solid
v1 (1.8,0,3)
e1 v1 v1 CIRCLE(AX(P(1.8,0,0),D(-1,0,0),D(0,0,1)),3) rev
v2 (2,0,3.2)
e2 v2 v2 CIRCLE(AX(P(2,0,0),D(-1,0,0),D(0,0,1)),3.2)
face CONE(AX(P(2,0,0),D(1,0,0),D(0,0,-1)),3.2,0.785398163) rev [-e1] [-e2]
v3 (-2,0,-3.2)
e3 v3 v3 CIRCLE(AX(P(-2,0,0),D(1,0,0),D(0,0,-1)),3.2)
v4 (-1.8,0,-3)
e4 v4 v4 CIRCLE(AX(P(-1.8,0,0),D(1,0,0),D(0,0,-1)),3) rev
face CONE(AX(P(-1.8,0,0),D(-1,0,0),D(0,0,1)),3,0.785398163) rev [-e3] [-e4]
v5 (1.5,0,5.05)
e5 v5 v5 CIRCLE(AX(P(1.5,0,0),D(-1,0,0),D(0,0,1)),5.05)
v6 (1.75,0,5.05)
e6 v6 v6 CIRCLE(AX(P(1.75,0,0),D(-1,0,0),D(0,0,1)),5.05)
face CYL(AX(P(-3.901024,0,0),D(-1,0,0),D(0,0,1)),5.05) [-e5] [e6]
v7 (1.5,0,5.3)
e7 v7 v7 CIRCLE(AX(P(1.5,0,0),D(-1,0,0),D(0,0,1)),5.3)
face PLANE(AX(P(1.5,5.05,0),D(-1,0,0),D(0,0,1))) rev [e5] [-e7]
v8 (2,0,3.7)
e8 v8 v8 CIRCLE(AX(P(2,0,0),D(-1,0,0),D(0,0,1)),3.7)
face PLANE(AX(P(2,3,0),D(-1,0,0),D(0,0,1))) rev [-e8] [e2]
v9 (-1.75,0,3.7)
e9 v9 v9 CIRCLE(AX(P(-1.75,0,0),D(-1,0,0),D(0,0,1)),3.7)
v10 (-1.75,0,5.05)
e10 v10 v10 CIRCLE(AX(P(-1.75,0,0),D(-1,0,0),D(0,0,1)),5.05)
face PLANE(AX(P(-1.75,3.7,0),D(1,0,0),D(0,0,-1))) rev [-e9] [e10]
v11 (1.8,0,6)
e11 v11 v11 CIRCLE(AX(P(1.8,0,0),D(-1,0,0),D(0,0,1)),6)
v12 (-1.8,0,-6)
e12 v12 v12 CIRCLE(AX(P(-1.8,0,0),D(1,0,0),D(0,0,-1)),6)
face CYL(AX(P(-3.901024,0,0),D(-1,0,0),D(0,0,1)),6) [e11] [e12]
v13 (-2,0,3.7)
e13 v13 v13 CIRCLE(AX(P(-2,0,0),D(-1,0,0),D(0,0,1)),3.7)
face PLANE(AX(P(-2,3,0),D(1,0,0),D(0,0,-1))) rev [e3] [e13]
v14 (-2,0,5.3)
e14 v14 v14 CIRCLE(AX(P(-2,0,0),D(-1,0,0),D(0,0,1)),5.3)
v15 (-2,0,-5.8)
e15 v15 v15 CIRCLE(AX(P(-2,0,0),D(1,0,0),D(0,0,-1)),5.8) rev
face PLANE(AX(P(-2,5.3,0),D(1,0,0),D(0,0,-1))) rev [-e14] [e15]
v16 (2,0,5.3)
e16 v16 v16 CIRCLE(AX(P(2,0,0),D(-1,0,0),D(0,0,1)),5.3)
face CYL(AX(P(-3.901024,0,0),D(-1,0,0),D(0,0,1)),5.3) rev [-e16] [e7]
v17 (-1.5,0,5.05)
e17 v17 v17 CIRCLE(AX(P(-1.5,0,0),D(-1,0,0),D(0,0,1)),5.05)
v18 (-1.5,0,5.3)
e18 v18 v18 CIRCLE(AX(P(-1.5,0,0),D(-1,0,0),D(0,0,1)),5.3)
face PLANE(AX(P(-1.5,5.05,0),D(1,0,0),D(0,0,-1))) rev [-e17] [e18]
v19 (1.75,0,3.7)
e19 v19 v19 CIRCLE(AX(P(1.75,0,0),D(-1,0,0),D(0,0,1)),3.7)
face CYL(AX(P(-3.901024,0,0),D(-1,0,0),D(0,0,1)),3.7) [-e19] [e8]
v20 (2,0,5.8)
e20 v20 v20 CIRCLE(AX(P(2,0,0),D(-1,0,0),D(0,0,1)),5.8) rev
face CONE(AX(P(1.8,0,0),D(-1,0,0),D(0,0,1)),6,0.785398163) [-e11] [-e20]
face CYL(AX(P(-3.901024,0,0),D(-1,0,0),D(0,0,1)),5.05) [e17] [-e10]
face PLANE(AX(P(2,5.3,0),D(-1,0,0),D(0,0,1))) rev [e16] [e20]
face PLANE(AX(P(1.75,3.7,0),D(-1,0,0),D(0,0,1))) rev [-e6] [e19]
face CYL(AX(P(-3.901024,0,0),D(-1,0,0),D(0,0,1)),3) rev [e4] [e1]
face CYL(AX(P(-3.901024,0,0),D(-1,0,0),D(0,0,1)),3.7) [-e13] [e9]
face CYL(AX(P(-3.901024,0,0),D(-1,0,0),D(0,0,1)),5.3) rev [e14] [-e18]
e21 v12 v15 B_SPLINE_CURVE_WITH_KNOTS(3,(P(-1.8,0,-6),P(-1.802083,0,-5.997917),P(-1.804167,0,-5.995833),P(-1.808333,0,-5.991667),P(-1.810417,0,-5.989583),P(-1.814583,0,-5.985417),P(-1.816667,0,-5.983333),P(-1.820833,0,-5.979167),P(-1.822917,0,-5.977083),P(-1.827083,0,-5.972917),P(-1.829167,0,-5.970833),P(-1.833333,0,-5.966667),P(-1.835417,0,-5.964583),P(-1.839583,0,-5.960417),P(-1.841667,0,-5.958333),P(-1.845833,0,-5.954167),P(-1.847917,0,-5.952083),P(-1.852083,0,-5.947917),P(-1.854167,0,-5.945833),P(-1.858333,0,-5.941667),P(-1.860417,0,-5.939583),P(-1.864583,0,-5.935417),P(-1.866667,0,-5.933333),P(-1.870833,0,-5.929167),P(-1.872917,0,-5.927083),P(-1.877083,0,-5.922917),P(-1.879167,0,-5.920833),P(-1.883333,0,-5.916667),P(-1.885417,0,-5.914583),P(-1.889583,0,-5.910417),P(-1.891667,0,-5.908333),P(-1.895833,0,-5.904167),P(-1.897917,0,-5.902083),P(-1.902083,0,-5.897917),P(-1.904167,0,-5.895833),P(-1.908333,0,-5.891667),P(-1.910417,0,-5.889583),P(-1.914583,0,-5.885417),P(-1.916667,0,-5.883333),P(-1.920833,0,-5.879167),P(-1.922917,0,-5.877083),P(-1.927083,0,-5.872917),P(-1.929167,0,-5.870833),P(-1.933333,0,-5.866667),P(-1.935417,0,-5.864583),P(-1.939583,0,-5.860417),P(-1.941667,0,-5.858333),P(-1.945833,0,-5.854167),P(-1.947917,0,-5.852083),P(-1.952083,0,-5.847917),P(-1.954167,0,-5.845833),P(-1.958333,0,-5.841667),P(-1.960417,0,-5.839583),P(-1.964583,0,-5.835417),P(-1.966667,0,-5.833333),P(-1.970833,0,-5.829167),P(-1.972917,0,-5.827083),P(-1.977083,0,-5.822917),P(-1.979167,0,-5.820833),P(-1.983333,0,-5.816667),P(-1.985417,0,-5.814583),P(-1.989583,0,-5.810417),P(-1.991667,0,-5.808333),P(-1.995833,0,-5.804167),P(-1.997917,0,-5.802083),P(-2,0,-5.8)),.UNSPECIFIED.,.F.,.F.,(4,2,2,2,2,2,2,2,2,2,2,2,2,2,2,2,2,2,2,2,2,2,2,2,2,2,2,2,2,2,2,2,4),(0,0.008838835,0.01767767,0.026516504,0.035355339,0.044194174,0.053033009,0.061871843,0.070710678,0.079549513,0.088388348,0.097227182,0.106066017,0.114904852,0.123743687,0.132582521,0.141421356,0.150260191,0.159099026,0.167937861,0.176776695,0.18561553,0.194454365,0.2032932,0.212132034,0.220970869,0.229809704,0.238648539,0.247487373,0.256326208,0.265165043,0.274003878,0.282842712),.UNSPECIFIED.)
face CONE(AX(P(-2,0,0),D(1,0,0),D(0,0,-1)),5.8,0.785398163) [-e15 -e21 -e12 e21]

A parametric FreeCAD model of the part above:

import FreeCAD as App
import Part
import Sketcher
Q = App.Units.Quantity


def edges_at(feature, points):
    """Names of the edges that pass closest to the given points."""
    edges = feature.Shape.Edges
    near = lambda p: min(range(len(edges)), key=lambda i: edges[i].distToShape(Part.Vertex(*p))[0])
    return sorted({f"Edge{near(p) + 1}" for p in points})


def add_polygon(sketch, points):
    """Adds a closed chain of lines whose ends are joined by coincident constraints."""
    first, n = sketch.GeometryCount, len(points)
    for a, b in zip(points, points[1:] + points[:1]):
        sketch.addGeometry(Part.LineSegment(App.Vector(*a, 0), App.Vector(*b, 0)), False)
    for i in range(n):
        sketch.addConstraint(Sketcher.Constraint("Coincident", first + i, 2, first + (i + 1) % n, 1))

doc = App.newDocument("Part")
body = doc.addObject("PartDesign::Body", "Body")

# Sketch on XY plane
sketch1 = body.newObject("Sketcher::SketchObject", "Sketch")
sketch1.AttachmentSupport = (doc.getObject("XY_Plane"), [""])
sketch1.MapMode = "FlatFace"
add_polygon(sketch1, [(-2, 3), (2, 3), (2, 3.7), (1.75, 3.7), (1.75, 5.05), (1.5, 5.05), (1.5, 5.3), (2, 5.3), (2, 6), (-2, 6), (-2, 5.3), (-1.5, 5.3), (-1.5, 5.05), (-1.75, 5.05), (-1.75, 3.7), (-2, 3.7)])  # lines 0-15
sketch1.addConstraint(Sketcher.Constraint("Horizontal", 0))
sketch1.addConstraint(Sketcher.Constraint("Vertical", 1))
sketch1.addConstraint(Sketcher.Constraint("Horizontal", 2))
sketch1.addConstraint(Sketcher.Constraint("Vertical", 3))
sketch1.addConstraint(Sketcher.Constraint("Horizontal", 4))
sketch1.addConstraint(Sketcher.Constraint("Vertical", 5))
sketch1.addConstraint(Sketcher.Constraint("Horizontal", 6))
sketch1.addConstraint(Sketcher.Constraint("Vertical", 7))
sketch1.addConstraint(Sketcher.Constraint("Horizontal", 8))
sketch1.addConstraint(Sketcher.Constraint("Vertical", 9))
sketch1.addConstraint(Sketcher.Constraint("Horizontal", 10))
sketch1.addConstraint(Sketcher.Constraint("Vertical", 11))
sketch1.addConstraint(Sketcher.Constraint("Horizontal", 12))
sketch1.addConstraint(Sketcher.Constraint("Vertical", 13))
sketch1.addConstraint(Sketcher.Constraint("Horizontal", 14))
sketch1.addConstraint(Sketcher.Constraint("Vertical", 15))
sketch1.addConstraint(Sketcher.Constraint("Symmetric", 6, 2, 9, 2, -2))
sketch1.addConstraint(Sketcher.Constraint("Symmetric", 4, 2, 11, 2, -2))
sketch1.addConstraint(Sketcher.Constraint("Symmetric", 2, 2, 13, 2, -2))
sketch1.addConstraint(Sketcher.Constraint("Vertical", 1, 2, 6, 2))
sketch1.addConstraint(Sketcher.Constraint("Vertical", 9, 2, 14, 2))
sketch1.addConstraint(Sketcher.Constraint("Equal", 2, 4))
sketch1.addConstraint(Sketcher.Constraint("Equal", 14, 5))
sketch1.addConstraint(Sketcher.Constraint("Equal", 1, 7))
sketch1.addConstraint(Sketcher.Constraint("DistanceX", 0, 1, 0, 2, Q("4 mm")))
sketch1.addConstraint(Sketcher.Constraint("DistanceX", 6, 1, 6, 2, Q("0.5 mm")))
sketch1.addConstraint(Sketcher.Constraint("DistanceY", 1, 1, 1, 2, Q("0.7 mm")))
sketch1.addConstraint(Sketcher.Constraint("DistanceY", -1, 1, 0, 2, Q("3 mm")))
sketch1.addConstraint(Sketcher.Constraint("DistanceY", -1, 1, 7, 2, Q("6 mm")))
revolution = body.newObject("PartDesign::Revolution", "Revolution")
revolution.Profile = sketch1
revolution.ReferenceAxis = (sketch1, ["H_Axis"])
revolution.Angle = 360
doc.recompute()

chamfer = body.newObject("PartDesign::Chamfer", "Chamfer")
chamfer.Base = (revolution, edges_at(revolution, [
    (-2, 0, -6),
    (2, 0, -6),
    (2, 0, -3),
    (-2, 0, -3),
]))
chamfer.Size = 0.2

doc.recompute()
